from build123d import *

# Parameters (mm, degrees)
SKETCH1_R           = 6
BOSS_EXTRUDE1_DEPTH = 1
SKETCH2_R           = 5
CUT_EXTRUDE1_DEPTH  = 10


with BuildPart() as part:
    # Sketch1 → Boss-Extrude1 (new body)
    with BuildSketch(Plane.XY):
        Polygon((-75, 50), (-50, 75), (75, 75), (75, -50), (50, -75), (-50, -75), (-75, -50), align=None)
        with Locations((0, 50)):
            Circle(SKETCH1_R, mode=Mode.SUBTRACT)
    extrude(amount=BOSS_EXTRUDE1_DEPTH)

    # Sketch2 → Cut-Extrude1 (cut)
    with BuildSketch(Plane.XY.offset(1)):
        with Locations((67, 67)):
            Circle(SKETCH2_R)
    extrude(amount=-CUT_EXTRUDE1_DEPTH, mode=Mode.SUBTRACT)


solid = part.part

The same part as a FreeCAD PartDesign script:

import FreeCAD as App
import Part
import Sketcher

V = App.Vector
Q = App.Units.Quantity

doc = App.newDocument("Part")
body = doc.addObject("PartDesign::Body", "Body")

sketch1 = body.newObject("Sketcher::SketchObject", "Sketch")
sketch1.AttachmentSupport = (doc.getObject("XY_Plane"), [""])
sketch1.MapMode = "FlatFace"
sketch1.addGeometry([
    Part.LineSegment(V(-50, 75, 0), V(-75, 50, 0)),
    Part.LineSegment(V(-75, 50, 0), V(-75, -50, 0)),
    Part.LineSegment(V(-75, -50, 0), V(-50, -75, 0)),
    Part.LineSegment(V(-50, -75, 0), V(50, -75, 0)),
    Part.LineSegment(V(50, -75, 0), V(75, -50, 0)),
    Part.LineSegment(V(75, -50, 0), V(75, 75, 0)),
    Part.LineSegment(V(75, 75, 0), V(-50, 75, 0)),
    Part.Circle(V(0, 50, 0), V(0, 0, 1), 6),
], False)
sketch1.addConstraint([
    Sketcher.Constraint("Coincident", 0, 2, 1, 1),
    Sketcher.Constraint("Coincident", 1, 2, 2, 1),
    Sketcher.Constraint("Coincident", 2, 2, 3, 1),
    Sketcher.Constraint("Coincident", 3, 2, 4, 1),
    Sketcher.Constraint("Coincident", 4, 2, 5, 1),
    Sketcher.Constraint("Coincident", 5, 2, 6, 1),
    Sketcher.Constraint("Coincident", 6, 2, 0, 1),
    Sketcher.Constraint("Vertical", 1),
    Sketcher.Constraint("Horizontal", 3),
    Sketcher.Constraint("Vertical", 5),
    Sketcher.Constraint("Horizontal", 6),
    Sketcher.Constraint("Symmetric", 0, 2, 4, 2, -1, 1),
    Sketcher.Constraint("Symmetric", 3, 2, 6, 2, -1, 1),
    Sketcher.Constraint("PointOnObject", 7, 3, -2),
    Sketcher.Constraint("Perpendicular", 0, 2),
    Sketcher.Constraint("Horizontal", 7, 3, 0, 2),
    Sketcher.Constraint("Horizontal", 1, 2, 4, 2),
    Sketcher.Constraint("Vertical", 2, 2, 6, 2),
    Sketcher.Constraint("Equal", 3, 1),
    Sketcher.Constraint("Diameter", 7, Q("12 mm")),
    Sketcher.Constraint("DistanceX", 3, 1, 3, 2, Q("100 mm")),
    Sketcher.Constraint("DistanceX", 6, 2, 6, 1, Q("125 mm")),
])
pad1 = body.newObject("PartDesign::Pad", "Pad")
pad1.Profile = sketch1
pad1.Length = 1

sketch2 = body.newObject("Sketcher::SketchObject", "Sketch001")
sketch2.AttachmentSupport = (doc.getObject("XY_Plane"), [""])
sketch2.MapMode = "FlatFace"
sketch2.AttachmentOffset = App.Placement(V(0, 0, 1), App.Rotation())
sketch2.addGeometry(Part.Circle(V(67, 67, 0), V(0, 0, 1), 5), False)
sketch2.addConstraint([
    Sketcher.Constraint("Diameter", 0, Q("10 mm")),
    Sketcher.Constraint("DistanceX", -1, 1, 0, 3, Q("67 mm")),
    Sketcher.Constraint("DistanceY", -1, 1, 0, 3, Q("67 mm")),
])
pocket1 = body.newObject("PartDesign::Pocket", "Pocket")
pocket1.Profile = sketch2
pocket1.Length = 10

doc.recompute()
